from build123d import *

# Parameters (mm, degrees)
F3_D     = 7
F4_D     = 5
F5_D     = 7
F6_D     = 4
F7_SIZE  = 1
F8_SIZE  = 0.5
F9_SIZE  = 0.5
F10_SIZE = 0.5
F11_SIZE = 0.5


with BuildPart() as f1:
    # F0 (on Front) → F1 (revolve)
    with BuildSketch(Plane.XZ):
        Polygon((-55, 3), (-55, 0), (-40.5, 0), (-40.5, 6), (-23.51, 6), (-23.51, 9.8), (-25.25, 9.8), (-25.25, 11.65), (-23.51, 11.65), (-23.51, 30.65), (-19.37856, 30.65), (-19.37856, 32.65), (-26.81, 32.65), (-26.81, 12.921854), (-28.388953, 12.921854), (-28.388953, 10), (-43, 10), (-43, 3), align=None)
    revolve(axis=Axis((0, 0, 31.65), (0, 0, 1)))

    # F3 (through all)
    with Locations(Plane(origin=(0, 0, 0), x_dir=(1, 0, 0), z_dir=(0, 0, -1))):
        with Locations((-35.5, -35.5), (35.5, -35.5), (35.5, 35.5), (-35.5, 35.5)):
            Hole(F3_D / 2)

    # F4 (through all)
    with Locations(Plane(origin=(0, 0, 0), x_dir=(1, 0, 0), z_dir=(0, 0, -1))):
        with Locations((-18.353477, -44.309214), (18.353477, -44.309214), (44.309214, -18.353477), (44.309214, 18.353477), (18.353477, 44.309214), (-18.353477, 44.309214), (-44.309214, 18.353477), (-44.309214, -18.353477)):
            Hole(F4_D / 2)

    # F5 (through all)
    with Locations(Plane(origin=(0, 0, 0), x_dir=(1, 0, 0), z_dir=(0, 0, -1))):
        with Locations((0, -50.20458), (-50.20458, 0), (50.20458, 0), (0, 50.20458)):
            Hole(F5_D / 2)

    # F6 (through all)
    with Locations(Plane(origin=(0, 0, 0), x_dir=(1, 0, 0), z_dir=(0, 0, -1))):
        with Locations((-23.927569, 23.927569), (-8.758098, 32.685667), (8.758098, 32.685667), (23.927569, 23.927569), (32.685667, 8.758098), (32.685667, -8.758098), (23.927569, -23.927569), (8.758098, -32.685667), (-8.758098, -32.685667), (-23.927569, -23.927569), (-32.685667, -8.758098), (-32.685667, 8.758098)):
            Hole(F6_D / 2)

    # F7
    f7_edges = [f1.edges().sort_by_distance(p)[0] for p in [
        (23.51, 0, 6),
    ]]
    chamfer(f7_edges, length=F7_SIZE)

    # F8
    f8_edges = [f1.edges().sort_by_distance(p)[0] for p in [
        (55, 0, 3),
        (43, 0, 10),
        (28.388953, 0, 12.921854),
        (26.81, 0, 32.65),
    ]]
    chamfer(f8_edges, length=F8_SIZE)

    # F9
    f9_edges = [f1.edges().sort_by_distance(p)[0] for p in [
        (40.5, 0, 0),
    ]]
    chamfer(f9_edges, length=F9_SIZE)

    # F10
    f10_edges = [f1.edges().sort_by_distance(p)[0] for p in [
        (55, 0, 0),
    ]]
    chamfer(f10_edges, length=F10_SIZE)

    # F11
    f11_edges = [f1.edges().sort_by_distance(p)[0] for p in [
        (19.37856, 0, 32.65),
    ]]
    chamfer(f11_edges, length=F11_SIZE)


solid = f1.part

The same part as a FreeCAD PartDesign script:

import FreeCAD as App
import Part
import Sketcher
from FreeCAD import Vector


def edges_at(feature, points):
    """Names of the edges that pass closest to the given points."""
    edges = feature.Shape.Edges
    near = lambda p: min(range(len(edges)), key=lambda i: edges[i].distToShape(Part.Vertex(*p))[0])
    return sorted({f"Edge{near(p) + 1}" for p in points})


def add_polygon(sketch, points):
    """Adds a closed chain of lines whose ends are joined by coincident constraints."""
    first, n = sketch.GeometryCount, len(points)
    for a, b in zip(points, points[1:] + points[:1]):
        sketch.addGeometry(Part.LineSegment(App.Vector(*a, 0), App.Vector(*b, 0)), False)
    for i in range(n):
        sketch.addConstraint(Sketcher.Constraint("Coincident", first + i, 2, first + (i + 1) % n, 1))

doc = App.newDocument("Part")
body = doc.addObject("PartDesign::Body", "Body")

sketch1 = doc.addObject("Sketcher::SketchObject", "Sketch")
body.addObject(sketch1)
sketch1.AttachmentSupport = (doc.XZ_Plane, [""])
sketch1.MapMode = "FlatFace"
add_polygon(sketch1, [(-55, 3), (-55, 0), (-40.5, 0), (-40.5, 6), (-23.51, 6), (-23.51, 9.8), (-25.25, 9.8), (-25.25, 11.65), (-23.51, 11.65), (-23.51, 30.65), (-19.37856, 30.65), (-19.37856, 32.65), (-26.81, 32.65), (-26.81, 12.921854), (-28.388953, 12.921854), (-28.388953, 10), (-43, 10), (-43, 3)])
sketch1.addConstraint([
    Sketcher.Constraint("Vertical", 0),
    Sketcher.Constraint("Horizontal", 1),
    Sketcher.Constraint("Vertical", 2),
    Sketcher.Constraint("Horizontal", 3),
    Sketcher.Constraint("Vertical", 4),
    Sketcher.Constraint("Horizontal", 5),
    Sketcher.Constraint("Vertical", 6),
    Sketcher.Constraint("Horizontal", 7),
    Sketcher.Constraint("Vertical", 8),
    Sketcher.Constraint("Horizontal", 9),
    Sketcher.Constraint("Vertical", 10),
    Sketcher.Constraint("Horizontal", 11),
    Sketcher.Constraint("Vertical", 12),
    Sketcher.Constraint("Horizontal", 13),
    Sketcher.Constraint("Vertical", 14),
    Sketcher.Constraint("Horizontal", 15),
    Sketcher.Constraint("Vertical", 16),
    Sketcher.Constraint("Horizontal", 17),
    Sketcher.Constraint("PointOnObject", 0, 2, -1),
    Sketcher.Constraint("Vertical", 4, 2, 7, 2),
    Sketcher.Constraint("DistanceX", 17, 2, 17, 1, 12.0),
    Sketcher.Constraint("DistanceY", 0, 2, 0, 1, 3.0),
    Sketcher.Constraint("DistanceY", 2, 1, 2, 2, 6.0),
    Sketcher.Constraint("DistanceY", 8, 1, 8, 2, 19.0),
    Sketcher.Constraint("DistanceY", 10, 1, 10, 2, 2.0),
    Sketcher.Constraint("DistanceY", 16, 2, 16, 1, 7.0),
    Sketcher.Constraint("DistanceX", 1, 1, 1, 2, 14.5),
    Sketcher.Constraint("DistanceY", 4, 1, 4, 2, 3.8),
    Sketcher.Constraint("DistanceX", 0, 2, -1, 1, 55.0),
    Sketcher.Constraint("DistanceX", 3, 1, 3, 2, 16.99),
    Sketcher.Constraint("DistanceX", 5, 2, 5, 1, 1.74),
    Sketcher.Constraint("DistanceY", 6, 1, 6, 2, 1.85),
    Sketcher.Constraint("DistanceX", 11, 2, 8, 2, 3.3),
    Sketcher.Constraint("DistanceX", 9, 1, 9, 2, 4.13144),
    Sketcher.Constraint("DistanceX", 13, 2, 13, 1, 1.578953),
    Sketcher.Constraint("DistanceY", 12, 2, 12, 1, 19.728146),
])
revolution = doc.addObject("PartDesign::Revolution", "Revolution")
body.addObject(revolution)
revolution.Profile = sketch1
revolution.ReferenceAxis = (sketch1, ["V_Axis"])
revolution.Angle = 360

sketch2 = doc.addObject("Sketcher::SketchObject", "Sketch001")
body.addObject(sketch2)
sketch2.AttachmentSupport = (doc.XY_Plane, [""])
sketch2.MapMode = "FlatFace"
sketch2.addGeometry([
    Part.Circle(Vector(-35.5, 35.5, 0), Vector(0, 0, 1), 3.5),
    Part.Circle(Vector(35.5, 35.5, 0), Vector(0, 0, 1), 3.5),
    Part.Circle(Vector(35.5, -35.5, 0), Vector(0, 0, 1), 3.5),
    Part.Circle(Vector(-35.5, -35.5, 0), Vector(0, 0, 1), 3.5),
], False)
sketch2.addConstraint([
    Sketcher.Constraint("Equal", 0, 1),
    Sketcher.Constraint("Equal", 1, 2),
    Sketcher.Constraint("Equal", 2, 3),
    Sketcher.Constraint("Symmetric", 0, 3, 2, 3, -1, 1),
    Sketcher.Constraint("Symmetric", 1, 3, 3, 3, -1, 1),
    Sketcher.Constraint("Symmetric", 0, 3, 1, 3, -2),
    Sketcher.Constraint("Diameter", 0, 7.0),
    Sketcher.Constraint("DistanceX", 0, 3, 1, 3, 71.0),
    Sketcher.Constraint("DistanceY", 2, 3, 1, 3, 71.0),
])
doc.recompute()
hole = doc.addObject("PartDesign::Hole", "Hole")
body.addObject(hole)
hole.Profile = sketch2
hole.ThreadType = "None"
hole.Diameter = 7
hole.DepthType = "ThroughAll"
hole.Reversed = True

sketch3 = doc.addObject("Sketcher::SketchObject", "Sketch002")
body.addObject(sketch3)
sketch3.AttachmentSupport = (doc.XY_Plane, [""])
sketch3.MapMode = "FlatFace"
sketch3.addGeometry([
    Part.Circle(Vector(-18.353477, 44.309214, 0), Vector(0, 0, 1), 2.5),
    Part.Circle(Vector(18.353477, 44.309214, 0), Vector(0, 0, 1), 2.5),
    Part.Circle(Vector(44.309214, 18.353477, 0), Vector(0, 0, 1), 2.5),
    Part.Circle(Vector(44.309214, -18.353477, 0), Vector(0, 0, 1), 2.5),
    Part.Circle(Vector(18.353477, -44.309214, 0), Vector(0, 0, 1), 2.5),
    Part.Circle(Vector(-18.353477, -44.309214, 0), Vector(0, 0, 1), 2.5),
    Part.Circle(Vector(-44.309214, -18.353477, 0), Vector(0, 0, 1), 2.5),
    Part.Circle(Vector(-44.309214, 18.353477, 0), Vector(0, 0, 1), 2.5),
], False)
sketch3.addConstraint([
    Sketcher.Constraint("Equal", 0, 1),
    Sketcher.Constraint("Equal", 1, 2),
    Sketcher.Constraint("Equal", 2, 3),
    Sketcher.Constraint("Equal", 3, 4),
    Sketcher.Constraint("Equal", 4, 5),
    Sketcher.Constraint("Equal", 5, 6),
    Sketcher.Constraint("Equal", 6, 7),
    Sketcher.Constraint("Symmetric", 0, 3, 4, 3, -1, 1),
    Sketcher.Constraint("Symmetric", 1, 3, 5, 3, -1, 1),
    Sketcher.Constraint("Symmetric", 2, 3, 6, 3, -1, 1),
    Sketcher.Constraint("Symmetric", 3, 3, 7, 3, -1, 1),
    Sketcher.Constraint("Symmetric", 0, 3, 1, 3, -2),
    Sketcher.Constraint("Symmetric", 3, 3, 6, 3, -2),
    Sketcher.Constraint("Diameter", 0, 5.0),
    Sketcher.Constraint("DistanceX", 0, 3, 2, 3, 62.662691),
    Sketcher.Constraint("DistanceY", 3, 3, 1, 3, 62.662691),
    Sketcher.Constraint("DistanceX", 0, 3, -1, 1, 18.353477),
    Sketcher.Constraint("DistanceY", -1, 1, 0, 3, 44.309214),
])
doc.recompute()
hole2 = doc.addObject("PartDesign::Hole", "Hole001")
body.addObject(hole2)
hole2.Profile = sketch3
hole2.ThreadType = "None"
hole2.Diameter = 5
hole2.DepthType = "ThroughAll"
hole2.Reversed = True

sketch4 = doc.addObject("Sketcher::SketchObject", "Sketch003")
body.addObject(sketch4)
sketch4.AttachmentSupport = (doc.XY_Plane, [""])
sketch4.MapMode = "FlatFace"
sketch4.addGeometry([
    Part.Circle(Vector(0, 50.20458, 0), Vector(0, 0, 1), 3.5),
    Part.Circle(Vector(-50.20458, 0, 0), Vector(0, 0, 1), 3.5),
    Part.Circle(Vector(50.20458, 0, 0), Vector(0, 0, 1), 3.5),
    Part.Circle(Vector(0, -50.20458, 0), Vector(0, 0, 1), 3.5),
], False)
sketch4.addConstraint([
    Sketcher.Constraint("Equal", 0, 1),
    Sketcher.Constraint("Equal", 1, 2),
    Sketcher.Constraint("Equal", 2, 3),
    Sketcher.Constraint("Symmetric", 1, 3, 2, 3, -1, 1),
    Sketcher.Constraint("Symmetric", 0, 3, 3, 3, -1, 1),
    Sketcher.Constraint("PointOnObject", 0, 3, -2),
    Sketcher.Constraint("PointOnObject", 1, 3, -1),
    Sketcher.Constraint("Diameter", 0, 7.0),
    Sketcher.Constraint("DistanceY", -1, 1, 0, 3, 50.20458),
    Sketcher.Constraint("DistanceX", 1, 3, -1, 1, 50.20458),
])
doc.recompute()
hole3 = doc.addObject("PartDesign::Hole", "Hole002")
body.addObject(hole3)
hole3.Profile = sketch4
hole3.ThreadType = "None"
hole3.Diameter = 7
hole3.DepthType = "ThroughAll"
hole3.Reversed = True

sketch5 = doc.addObject("Sketcher::SketchObject", "Sketch004")
body.addObject(sketch5)
sketch5.AttachmentSupport = (doc.XY_Plane, [""])
sketch5.MapMode = "FlatFace"
sketch5.addGeometry([
    Part.Circle(Vector(-23.927569, -23.927569, 0), Vector(0, 0, 1), 2),
    Part.Circle(Vector(-8.758098, -32.685667, 0), Vector(0, 0, 1), 2),
    Part.Circle(Vector(8.758098, -32.685667, 0), Vector(0, 0, 1), 2),
    Part.Circle(Vector(23.927569, -23.927569, 0), Vector(0, 0, 1), 2),
    Part.Circle(Vector(32.685667, -8.758098, 0), Vector(0, 0, 1), 2),
    Part.Circle(Vector(32.685667, 8.758098, 0), Vector(0, 0, 1), 2),
    Part.Circle(Vector(23.927569, 23.927569, 0), Vector(0, 0, 1), 2),
    Part.Circle(Vector(8.758098, 32.685667, 0), Vector(0, 0, 1), 2),
    Part.Circle(Vector(-8.758098, 32.685667, 0), Vector(0, 0, 1), 2),
    Part.Circle(Vector(-23.927569, 23.927569, 0), Vector(0, 0, 1), 2),
    Part.Circle(Vector(-32.685667, 8.758098, 0), Vector(0, 0, 1), 2),
    Part.Circle(Vector(-32.685667, -8.758098, 0), Vector(0, 0, 1), 2),
], False)
sketch5.addConstraint([
    Sketcher.Constraint("Equal", 0, 1),
    Sketcher.Constraint("Equal", 1, 2),
    Sketcher.Constraint("Equal", 2, 3),
    Sketcher.Constraint("Equal", 3, 4),
    Sketcher.Constraint("Equal", 4, 5),
    Sketcher.Constraint("Equal", 5, 6),
    Sketcher.Constraint("Equal", 6, 7),
    Sketcher.Constraint("Equal", 7, 8),
    Sketcher.Constraint("Equal", 8, 9),
    Sketcher.Constraint("Equal", 9, 10),
    Sketcher.Constraint("Equal", 10, 11),
    Sketcher.Constraint("Symmetric", 0, 3, 6, 3, -1, 1),
    Sketcher.Constraint("Symmetric", 1, 3, 7, 3, -1, 1),
    Sketcher.Constraint("Symmetric", 2, 3, 8, 3, -1, 1),
    Sketcher.Constraint("Symmetric", 3, 3, 9, 3, -1, 1),
    Sketcher.Constraint("Symmetric", 4, 3, 10, 3, -1, 1),
    Sketcher.Constraint("Symmetric", 5, 3, 11, 3, -1, 1),
    Sketcher.Constraint("Symmetric", 1, 3, 2, 3, -2),
    Sketcher.Constraint("Symmetric", 0, 3, 3, 3, -2),
    Sketcher.Constraint("Symmetric", 5, 3, 10, 3, -2),
    Sketcher.Constraint("Diameter", 0, 4.0),
    Sketcher.Constraint("DistanceY", 1, 3, 0, 3, 8.758098),
    Sketcher.Constraint("DistanceX", 3, 3, 4, 3, 8.758098),
    Sketcher.Constraint("DistanceX", 0, 3, -1, 1, 23.927569),
    Sketcher.Constraint("DistanceY", 0, 3, -1, 1, 23.927569),
    Sketcher.Constraint("DistanceX", 0, 3, 1, 3, 15.169471),
    Sketcher.Constraint("DistanceY", 3, 3, 4, 3, 15.169471),
])
doc.recompute()
hole4 = doc.addObject("PartDesign::Hole", "Hole003")
body.addObject(hole4)
hole4.Profile = sketch5
hole4.ThreadType = "None"
hole4.Diameter = 4
hole4.DepthType = "ThroughAll"
hole4.Reversed = True
doc.recompute()

chamfer = doc.addObject("PartDesign::Chamfer", "Chamfer")
body.addObject(chamfer)
chamfer.Base = (hole4, edges_at(hole4, [(23.51, 0, 6)]))
chamfer.Size = 1
doc.recompute()

chamfer2 = doc.addObject("PartDesign::Chamfer", "Chamfer001")
body.addObject(chamfer2)
chamfer2.Base = (chamfer, edges_at(chamfer, [
    (55, 0, 3),
    (43, 0, 10),
    (28.389, 0, 12.922),
    (26.81, 0, 32.65),
]))
chamfer2.Size = 0.5
doc.recompute()

chamfer3 = doc.addObject("PartDesign::Chamfer", "Chamfer002")
body.addObject(chamfer3)
chamfer3.Base = (chamfer2, edges_at(chamfer2, [(40.5, 0, 0)]))
chamfer3.Size = 0.5
doc.recompute()

chamfer4 = doc.addObject("PartDesign::Chamfer", "Chamfer003")
body.addObject(chamfer4)
chamfer4.Base = (chamfer3, edges_at(chamfer3, [(55, 0, 0)]))
chamfer4.Size = 0.5
doc.recompute()

chamfer5 = doc.addObject("PartDesign::Chamfer", "Chamfer004")
body.addObject(chamfer5)
chamfer5.Base = (chamfer4, edges_at(chamfer4, [(19.379, 0, 32.65)]))
chamfer5.Size = 0.5

doc.recompute()
